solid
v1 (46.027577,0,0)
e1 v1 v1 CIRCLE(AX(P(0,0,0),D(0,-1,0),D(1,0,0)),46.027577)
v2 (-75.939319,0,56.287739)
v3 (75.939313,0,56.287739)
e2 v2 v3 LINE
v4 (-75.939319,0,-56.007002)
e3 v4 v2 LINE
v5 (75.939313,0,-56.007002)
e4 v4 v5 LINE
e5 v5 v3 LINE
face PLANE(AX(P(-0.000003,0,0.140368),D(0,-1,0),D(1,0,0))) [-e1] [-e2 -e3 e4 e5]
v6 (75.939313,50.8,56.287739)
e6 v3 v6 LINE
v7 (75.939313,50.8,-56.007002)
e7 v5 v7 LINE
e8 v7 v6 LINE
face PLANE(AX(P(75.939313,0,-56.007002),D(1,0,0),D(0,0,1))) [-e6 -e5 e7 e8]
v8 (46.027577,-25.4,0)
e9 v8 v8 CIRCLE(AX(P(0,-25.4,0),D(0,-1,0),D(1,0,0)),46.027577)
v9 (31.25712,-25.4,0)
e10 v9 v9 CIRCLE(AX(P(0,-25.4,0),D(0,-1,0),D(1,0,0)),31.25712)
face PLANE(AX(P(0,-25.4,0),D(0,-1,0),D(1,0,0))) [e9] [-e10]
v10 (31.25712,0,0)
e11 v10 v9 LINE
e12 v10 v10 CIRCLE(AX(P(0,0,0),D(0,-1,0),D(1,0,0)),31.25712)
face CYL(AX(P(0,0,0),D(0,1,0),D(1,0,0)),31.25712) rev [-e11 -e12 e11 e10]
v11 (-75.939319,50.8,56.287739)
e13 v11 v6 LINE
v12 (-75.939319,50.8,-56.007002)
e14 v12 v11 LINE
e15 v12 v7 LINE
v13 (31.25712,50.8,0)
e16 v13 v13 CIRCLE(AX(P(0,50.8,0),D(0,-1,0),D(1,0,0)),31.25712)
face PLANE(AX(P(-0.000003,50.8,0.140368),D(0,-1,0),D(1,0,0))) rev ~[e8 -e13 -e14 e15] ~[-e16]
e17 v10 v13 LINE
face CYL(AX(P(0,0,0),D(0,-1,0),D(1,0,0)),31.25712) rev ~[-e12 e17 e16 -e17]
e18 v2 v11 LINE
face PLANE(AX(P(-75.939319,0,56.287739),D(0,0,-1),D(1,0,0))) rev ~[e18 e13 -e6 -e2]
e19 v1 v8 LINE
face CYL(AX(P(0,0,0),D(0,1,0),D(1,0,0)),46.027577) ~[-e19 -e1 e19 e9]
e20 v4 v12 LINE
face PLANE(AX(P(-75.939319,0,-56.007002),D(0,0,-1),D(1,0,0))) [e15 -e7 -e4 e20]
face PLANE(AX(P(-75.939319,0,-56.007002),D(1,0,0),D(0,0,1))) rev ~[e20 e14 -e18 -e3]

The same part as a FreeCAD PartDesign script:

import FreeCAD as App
import Part
import Sketcher
from FreeCAD import Vector
Q = App.Units.Quantity

doc = App.newDocument("Part")
body = doc.addObject("PartDesign::Body", "Body")

# Sketch on XZ plane
sketch1 = body.newObject("Sketcher::SketchObject", "Sketch")
sketch1.AttachmentSupport = (doc.getObject("XZ_Plane"), [""])
sketch1.MapMode = "FlatFace"
sketch1.addGeometry([
    Part.Circle(Vector(0, 0, 0), Vector(0, 0, 1), 46),
    Part.Circle(Vector(0, 0, 0), Vector(0, 0, 1), 31),
], False)
sketch1.addConstraint([
    Sketcher.Constraint("Coincident", 0, 3, -1, 1),
    Sketcher.Constraint("Coincident", 1, 3, -1, 1),
    Sketcher.Constraint("Diameter", 1, 62.51424),
    Sketcher.Constraint("Diameter", 0, 92.055154),
])
pad1 = body.newObject("PartDesign::Pad", "Pad")
pad1.Profile = sketch1
pad1.Length = Q("1 in")

# Sketch on XZ plane
sketch2 = body.newObject("Sketcher::SketchObject", "Sketch001")
sketch2.AttachmentSupport = (doc.getObject("XZ_Plane"), [""])
sketch2.MapMode = "FlatFace"
sketch2.addGeometry([
    Part.LineSegment(Vector(-76, 56, 0), Vector(-76, -56, 0)),
    Part.LineSegment(Vector(-76, -56, 0), Vector(76, -56, 0)),
    Part.LineSegment(Vector(76, -56, 0), Vector(76, 56, 0)),
    Part.LineSegment(Vector(76, 56, 0), Vector(-76, 56, 0)),
], False)
sketch2.addConstraint([
    Sketcher.Constraint("Coincident", 0, 2, 1, 1),
    Sketcher.Constraint("Coincident", 1, 2, 2, 1),
    Sketcher.Constraint("Coincident", 2, 2, 3, 1),
    Sketcher.Constraint("Coincident", 3, 2, 0, 1),
    Sketcher.Constraint("Vertical", 0),
    Sketcher.Constraint("Horizontal", 1),
    Sketcher.Constraint("Vertical", 2),
    Sketcher.Constraint("Horizontal", 3),
    Sketcher.Constraint("DistanceY", 0, 2, -1, 1, Q("2.2050001 in")),
    Sketcher.Constraint("DistanceY", 0, 2, 0, 1, 112.294741),
    Sketcher.Constraint("DistanceX", 1, 1, 1, 2, 151.878633),
    Sketcher.Constraint("DistanceX", 0, 2, -1, 1, 75.939319),
])
pad2 = body.newObject("PartDesign::Pad", "Pad001")
pad2.Profile = sketch2
pad2.Length = Q("2 in")
pad2.Reversed = True

# Sketch on XZ plane
sketch3 = body.newObject("Sketcher::SketchObject", "Sketch002")
sketch3.AttachmentSupport = (doc.getObject("XZ_Plane"), [""])
sketch3.MapMode = "FlatFace"
sketch3.addGeometry(Part.Circle(Vector(0, 0, 0), Vector(0, 0, 1), 31), False)
sketch3.addConstraint([
    Sketcher.Constraint("Coincident", 0, 3, -1, 1),
    Sketcher.Constraint("Diameter", 0, 62.51424),
])
pocket1 = body.newObject("PartDesign::Pocket", "Pocket")
pocket1.Profile = sketch3
pocket1.Length = Q("5.29 in")

doc.recompute()
